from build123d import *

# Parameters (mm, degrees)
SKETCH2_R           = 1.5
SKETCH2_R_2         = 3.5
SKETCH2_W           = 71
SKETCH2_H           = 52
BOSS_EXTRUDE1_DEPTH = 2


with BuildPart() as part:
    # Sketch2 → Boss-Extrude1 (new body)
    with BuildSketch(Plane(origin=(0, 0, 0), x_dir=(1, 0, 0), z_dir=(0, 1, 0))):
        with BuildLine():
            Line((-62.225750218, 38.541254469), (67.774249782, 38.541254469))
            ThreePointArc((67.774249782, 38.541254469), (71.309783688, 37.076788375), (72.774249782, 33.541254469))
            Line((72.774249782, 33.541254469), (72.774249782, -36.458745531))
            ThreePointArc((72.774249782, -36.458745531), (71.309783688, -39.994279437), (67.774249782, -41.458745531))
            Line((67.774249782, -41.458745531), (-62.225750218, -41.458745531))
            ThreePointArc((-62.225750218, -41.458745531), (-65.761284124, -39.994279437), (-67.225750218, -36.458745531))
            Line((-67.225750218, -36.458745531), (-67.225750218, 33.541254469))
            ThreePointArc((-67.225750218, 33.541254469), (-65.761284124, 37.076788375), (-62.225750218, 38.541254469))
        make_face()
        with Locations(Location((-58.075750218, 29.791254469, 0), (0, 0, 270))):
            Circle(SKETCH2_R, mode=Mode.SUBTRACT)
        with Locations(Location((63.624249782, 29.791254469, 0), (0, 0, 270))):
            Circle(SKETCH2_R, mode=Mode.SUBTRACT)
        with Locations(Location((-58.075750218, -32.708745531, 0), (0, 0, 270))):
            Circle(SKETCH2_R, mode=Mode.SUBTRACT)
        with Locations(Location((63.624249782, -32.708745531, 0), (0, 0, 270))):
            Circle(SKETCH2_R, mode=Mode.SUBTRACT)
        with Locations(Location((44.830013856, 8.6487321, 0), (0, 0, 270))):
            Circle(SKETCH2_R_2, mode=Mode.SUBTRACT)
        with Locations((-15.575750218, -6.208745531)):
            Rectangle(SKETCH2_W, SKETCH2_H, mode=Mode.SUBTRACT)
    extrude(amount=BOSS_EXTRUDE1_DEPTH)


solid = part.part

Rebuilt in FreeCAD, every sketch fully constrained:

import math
import FreeCAD as App
import Part
import Sketcher

doc = App.newDocument("Part")
body = doc.addObject("PartDesign::Body", "Body")

# Sketch on XZ plane
sketch1 = body.newObject("Sketcher::SketchObject", "Sketch")
sketch1.AttachmentSupport = (doc.getObject("XZ_Plane"), [""])
sketch1.MapMode = "FlatFace"
sketch1.addGeometry([
    Part.LineSegment(App.Vector(67.8, -38.5, 0), App.Vector(-62.2, -38.5, 0)),  # 0
    Part.ArcOfCircle(Part.Circle(App.Vector(-62.2, -33.5, 0), App.Vector(0, 0, 1), 5), math.radians(180), math.radians(270)),  # 1
    Part.LineSegment(App.Vector(-67.2, -33.5, 0), App.Vector(-67.2, 36.5, 0)),  # 2
    Part.ArcOfCircle(Part.Circle(App.Vector(-62.2, 36.5, 0), App.Vector(0, 0, 1), 5), math.radians(90), math.radians(180)),  # 3
    Part.LineSegment(App.Vector(-62.2, 41.5, 0), App.Vector(67.8, 41.5, 0)),  # 4
    Part.ArcOfCircle(Part.Circle(App.Vector(67.8, 36.5, 0), App.Vector(0, 0, 1), 5), math.radians(0), math.radians(90)),  # 5
    Part.LineSegment(App.Vector(72.8, 36.5, 0), App.Vector(72.8, -33.5, 0)),  # 6
    Part.ArcOfCircle(Part.Circle(App.Vector(67.8, -33.5, 0), App.Vector(0, 0, 1), 5), math.radians(-90), math.radians(0)),  # 7
    Part.Circle(App.Vector(63.6, 32.7, 0), App.Vector(0, 0, 1), 1.5),  # 8
    Part.Circle(App.Vector(-58.1, 32.7, 0), App.Vector(0, 0, 1), 1.5),  # 9
    Part.LineSegment(App.Vector(-51.1, 32.2, 0), App.Vector(-51.1, -19.8, 0)),  # 10
    Part.LineSegment(App.Vector(-51.1, -19.8, 0), App.Vector(19.9, -19.8, 0)),  # 11
    Part.LineSegment(App.Vector(19.9, -19.8, 0), App.Vector(19.9, 32.2, 0)),  # 12
    Part.LineSegment(App.Vector(19.9, 32.2, 0), App.Vector(-51.1, 32.2, 0)),  # 13
    Part.Circle(App.Vector(44.8, -8.6, 0), App.Vector(0, 0, 1), 3.5),  # 14
    Part.Circle(App.Vector(63.6, -29.8, 0), App.Vector(0, 0, 1), 1.5),  # 15
    Part.Circle(App.Vector(-58.1, -29.8, 0), App.Vector(0, 0, 1), 1.5),  # 16
], False)
sketch1.addConstraint([
    Sketcher.Constraint("Tangent", 0, 2, 1, 2),
    Sketcher.Constraint("Tangent", 1, 1, 2, 1),
    Sketcher.Constraint("Tangent", 2, 2, 3, 2),
    Sketcher.Constraint("Tangent", 3, 1, 4, 1),
    Sketcher.Constraint("Tangent", 4, 2, 5, 2),
    Sketcher.Constraint("Tangent", 5, 1, 6, 1),
    Sketcher.Constraint("Tangent", 6, 2, 7, 2),
    Sketcher.Constraint("Tangent", 7, 1, 0, 1),
    Sketcher.Constraint("Coincident", 10, 2, 11, 1),
    Sketcher.Constraint("Coincident", 11, 2, 12, 1),
    Sketcher.Constraint("Coincident", 12, 2, 13, 1),
    Sketcher.Constraint("Coincident", 13, 2, 10, 1),
    Sketcher.Constraint("Horizontal", 0),
    Sketcher.Constraint("Vertical", 2),
    Sketcher.Constraint("Horizontal", 4),
    Sketcher.Constraint("Vertical", 6),
    Sketcher.Constraint("Vertical", 10),
    Sketcher.Constraint("Horizontal", 11),
    Sketcher.Constraint("Vertical", 12),
    Sketcher.Constraint("Horizontal", 13),
    Sketcher.Constraint("Equal", 1, 3),
    Sketcher.Constraint("Equal", 3, 5),
    Sketcher.Constraint("Equal", 5, 7),
    Sketcher.Constraint("Equal", 8, 9),
    Sketcher.Constraint("Equal", 9, 15),
    Sketcher.Constraint("Equal", 15, 16),
    Sketcher.Constraint("Horizontal", 8, 3, 9, 3),
    Sketcher.Constraint("Horizontal", 15, 3, 16, 3),
    Sketcher.Constraint("Vertical", 8, 3, 15, 3),
    Sketcher.Constraint("Vertical", 9, 3, 16, 3),
    Sketcher.Constraint("Diameter", 8, 3.0),
    Sketcher.Constraint("Diameter", 14, 7.0),
    Sketcher.Constraint("Radius", 1, 5.0),
    Sketcher.Constraint("DistanceX", 0, 2, 0, 1, 130.0),
    Sketcher.Constraint("DistanceX", 11, 1, 11, 2, 71.0),
    Sketcher.Constraint("DistanceY", 2, 1, 2, 2, 70.0),
    Sketcher.Constraint("DistanceY", 10, 2, 10, 1, 52.0),
    Sketcher.Constraint("DistanceX", 16, 3, 10, 2, 7.0),
    Sketcher.Constraint("DistanceY", 16, 3, 10, 2, 10.0),
    Sketcher.Constraint("DistanceX", 9, 3, 8, 3, 121.7),
    Sketcher.Constraint("DistanceY", 15, 3, 8, 3, 62.5),
    Sketcher.Constraint("DistanceX", 8, 3, 5, 3, 4.15),
    Sketcher.Constraint("DistanceY", 8, 3, 5, 3, 3.75),
    Sketcher.Constraint("DistanceX", 1, 3, -1, 1, 62.22575),
    Sketcher.Constraint("DistanceY", 1, 3, -1, 1, 33.541254),
    Sketcher.Constraint("DistanceX", -1, 1, 14, 3, 44.830014),
    Sketcher.Constraint("DistanceY", 14, 3, -1, 1, 8.648732),
])
pad1 = body.newObject("PartDesign::Pad", "Pad")
pad1.Profile = sketch1
pad1.Length = 2
pad1.Reversed = True

doc.recompute()
